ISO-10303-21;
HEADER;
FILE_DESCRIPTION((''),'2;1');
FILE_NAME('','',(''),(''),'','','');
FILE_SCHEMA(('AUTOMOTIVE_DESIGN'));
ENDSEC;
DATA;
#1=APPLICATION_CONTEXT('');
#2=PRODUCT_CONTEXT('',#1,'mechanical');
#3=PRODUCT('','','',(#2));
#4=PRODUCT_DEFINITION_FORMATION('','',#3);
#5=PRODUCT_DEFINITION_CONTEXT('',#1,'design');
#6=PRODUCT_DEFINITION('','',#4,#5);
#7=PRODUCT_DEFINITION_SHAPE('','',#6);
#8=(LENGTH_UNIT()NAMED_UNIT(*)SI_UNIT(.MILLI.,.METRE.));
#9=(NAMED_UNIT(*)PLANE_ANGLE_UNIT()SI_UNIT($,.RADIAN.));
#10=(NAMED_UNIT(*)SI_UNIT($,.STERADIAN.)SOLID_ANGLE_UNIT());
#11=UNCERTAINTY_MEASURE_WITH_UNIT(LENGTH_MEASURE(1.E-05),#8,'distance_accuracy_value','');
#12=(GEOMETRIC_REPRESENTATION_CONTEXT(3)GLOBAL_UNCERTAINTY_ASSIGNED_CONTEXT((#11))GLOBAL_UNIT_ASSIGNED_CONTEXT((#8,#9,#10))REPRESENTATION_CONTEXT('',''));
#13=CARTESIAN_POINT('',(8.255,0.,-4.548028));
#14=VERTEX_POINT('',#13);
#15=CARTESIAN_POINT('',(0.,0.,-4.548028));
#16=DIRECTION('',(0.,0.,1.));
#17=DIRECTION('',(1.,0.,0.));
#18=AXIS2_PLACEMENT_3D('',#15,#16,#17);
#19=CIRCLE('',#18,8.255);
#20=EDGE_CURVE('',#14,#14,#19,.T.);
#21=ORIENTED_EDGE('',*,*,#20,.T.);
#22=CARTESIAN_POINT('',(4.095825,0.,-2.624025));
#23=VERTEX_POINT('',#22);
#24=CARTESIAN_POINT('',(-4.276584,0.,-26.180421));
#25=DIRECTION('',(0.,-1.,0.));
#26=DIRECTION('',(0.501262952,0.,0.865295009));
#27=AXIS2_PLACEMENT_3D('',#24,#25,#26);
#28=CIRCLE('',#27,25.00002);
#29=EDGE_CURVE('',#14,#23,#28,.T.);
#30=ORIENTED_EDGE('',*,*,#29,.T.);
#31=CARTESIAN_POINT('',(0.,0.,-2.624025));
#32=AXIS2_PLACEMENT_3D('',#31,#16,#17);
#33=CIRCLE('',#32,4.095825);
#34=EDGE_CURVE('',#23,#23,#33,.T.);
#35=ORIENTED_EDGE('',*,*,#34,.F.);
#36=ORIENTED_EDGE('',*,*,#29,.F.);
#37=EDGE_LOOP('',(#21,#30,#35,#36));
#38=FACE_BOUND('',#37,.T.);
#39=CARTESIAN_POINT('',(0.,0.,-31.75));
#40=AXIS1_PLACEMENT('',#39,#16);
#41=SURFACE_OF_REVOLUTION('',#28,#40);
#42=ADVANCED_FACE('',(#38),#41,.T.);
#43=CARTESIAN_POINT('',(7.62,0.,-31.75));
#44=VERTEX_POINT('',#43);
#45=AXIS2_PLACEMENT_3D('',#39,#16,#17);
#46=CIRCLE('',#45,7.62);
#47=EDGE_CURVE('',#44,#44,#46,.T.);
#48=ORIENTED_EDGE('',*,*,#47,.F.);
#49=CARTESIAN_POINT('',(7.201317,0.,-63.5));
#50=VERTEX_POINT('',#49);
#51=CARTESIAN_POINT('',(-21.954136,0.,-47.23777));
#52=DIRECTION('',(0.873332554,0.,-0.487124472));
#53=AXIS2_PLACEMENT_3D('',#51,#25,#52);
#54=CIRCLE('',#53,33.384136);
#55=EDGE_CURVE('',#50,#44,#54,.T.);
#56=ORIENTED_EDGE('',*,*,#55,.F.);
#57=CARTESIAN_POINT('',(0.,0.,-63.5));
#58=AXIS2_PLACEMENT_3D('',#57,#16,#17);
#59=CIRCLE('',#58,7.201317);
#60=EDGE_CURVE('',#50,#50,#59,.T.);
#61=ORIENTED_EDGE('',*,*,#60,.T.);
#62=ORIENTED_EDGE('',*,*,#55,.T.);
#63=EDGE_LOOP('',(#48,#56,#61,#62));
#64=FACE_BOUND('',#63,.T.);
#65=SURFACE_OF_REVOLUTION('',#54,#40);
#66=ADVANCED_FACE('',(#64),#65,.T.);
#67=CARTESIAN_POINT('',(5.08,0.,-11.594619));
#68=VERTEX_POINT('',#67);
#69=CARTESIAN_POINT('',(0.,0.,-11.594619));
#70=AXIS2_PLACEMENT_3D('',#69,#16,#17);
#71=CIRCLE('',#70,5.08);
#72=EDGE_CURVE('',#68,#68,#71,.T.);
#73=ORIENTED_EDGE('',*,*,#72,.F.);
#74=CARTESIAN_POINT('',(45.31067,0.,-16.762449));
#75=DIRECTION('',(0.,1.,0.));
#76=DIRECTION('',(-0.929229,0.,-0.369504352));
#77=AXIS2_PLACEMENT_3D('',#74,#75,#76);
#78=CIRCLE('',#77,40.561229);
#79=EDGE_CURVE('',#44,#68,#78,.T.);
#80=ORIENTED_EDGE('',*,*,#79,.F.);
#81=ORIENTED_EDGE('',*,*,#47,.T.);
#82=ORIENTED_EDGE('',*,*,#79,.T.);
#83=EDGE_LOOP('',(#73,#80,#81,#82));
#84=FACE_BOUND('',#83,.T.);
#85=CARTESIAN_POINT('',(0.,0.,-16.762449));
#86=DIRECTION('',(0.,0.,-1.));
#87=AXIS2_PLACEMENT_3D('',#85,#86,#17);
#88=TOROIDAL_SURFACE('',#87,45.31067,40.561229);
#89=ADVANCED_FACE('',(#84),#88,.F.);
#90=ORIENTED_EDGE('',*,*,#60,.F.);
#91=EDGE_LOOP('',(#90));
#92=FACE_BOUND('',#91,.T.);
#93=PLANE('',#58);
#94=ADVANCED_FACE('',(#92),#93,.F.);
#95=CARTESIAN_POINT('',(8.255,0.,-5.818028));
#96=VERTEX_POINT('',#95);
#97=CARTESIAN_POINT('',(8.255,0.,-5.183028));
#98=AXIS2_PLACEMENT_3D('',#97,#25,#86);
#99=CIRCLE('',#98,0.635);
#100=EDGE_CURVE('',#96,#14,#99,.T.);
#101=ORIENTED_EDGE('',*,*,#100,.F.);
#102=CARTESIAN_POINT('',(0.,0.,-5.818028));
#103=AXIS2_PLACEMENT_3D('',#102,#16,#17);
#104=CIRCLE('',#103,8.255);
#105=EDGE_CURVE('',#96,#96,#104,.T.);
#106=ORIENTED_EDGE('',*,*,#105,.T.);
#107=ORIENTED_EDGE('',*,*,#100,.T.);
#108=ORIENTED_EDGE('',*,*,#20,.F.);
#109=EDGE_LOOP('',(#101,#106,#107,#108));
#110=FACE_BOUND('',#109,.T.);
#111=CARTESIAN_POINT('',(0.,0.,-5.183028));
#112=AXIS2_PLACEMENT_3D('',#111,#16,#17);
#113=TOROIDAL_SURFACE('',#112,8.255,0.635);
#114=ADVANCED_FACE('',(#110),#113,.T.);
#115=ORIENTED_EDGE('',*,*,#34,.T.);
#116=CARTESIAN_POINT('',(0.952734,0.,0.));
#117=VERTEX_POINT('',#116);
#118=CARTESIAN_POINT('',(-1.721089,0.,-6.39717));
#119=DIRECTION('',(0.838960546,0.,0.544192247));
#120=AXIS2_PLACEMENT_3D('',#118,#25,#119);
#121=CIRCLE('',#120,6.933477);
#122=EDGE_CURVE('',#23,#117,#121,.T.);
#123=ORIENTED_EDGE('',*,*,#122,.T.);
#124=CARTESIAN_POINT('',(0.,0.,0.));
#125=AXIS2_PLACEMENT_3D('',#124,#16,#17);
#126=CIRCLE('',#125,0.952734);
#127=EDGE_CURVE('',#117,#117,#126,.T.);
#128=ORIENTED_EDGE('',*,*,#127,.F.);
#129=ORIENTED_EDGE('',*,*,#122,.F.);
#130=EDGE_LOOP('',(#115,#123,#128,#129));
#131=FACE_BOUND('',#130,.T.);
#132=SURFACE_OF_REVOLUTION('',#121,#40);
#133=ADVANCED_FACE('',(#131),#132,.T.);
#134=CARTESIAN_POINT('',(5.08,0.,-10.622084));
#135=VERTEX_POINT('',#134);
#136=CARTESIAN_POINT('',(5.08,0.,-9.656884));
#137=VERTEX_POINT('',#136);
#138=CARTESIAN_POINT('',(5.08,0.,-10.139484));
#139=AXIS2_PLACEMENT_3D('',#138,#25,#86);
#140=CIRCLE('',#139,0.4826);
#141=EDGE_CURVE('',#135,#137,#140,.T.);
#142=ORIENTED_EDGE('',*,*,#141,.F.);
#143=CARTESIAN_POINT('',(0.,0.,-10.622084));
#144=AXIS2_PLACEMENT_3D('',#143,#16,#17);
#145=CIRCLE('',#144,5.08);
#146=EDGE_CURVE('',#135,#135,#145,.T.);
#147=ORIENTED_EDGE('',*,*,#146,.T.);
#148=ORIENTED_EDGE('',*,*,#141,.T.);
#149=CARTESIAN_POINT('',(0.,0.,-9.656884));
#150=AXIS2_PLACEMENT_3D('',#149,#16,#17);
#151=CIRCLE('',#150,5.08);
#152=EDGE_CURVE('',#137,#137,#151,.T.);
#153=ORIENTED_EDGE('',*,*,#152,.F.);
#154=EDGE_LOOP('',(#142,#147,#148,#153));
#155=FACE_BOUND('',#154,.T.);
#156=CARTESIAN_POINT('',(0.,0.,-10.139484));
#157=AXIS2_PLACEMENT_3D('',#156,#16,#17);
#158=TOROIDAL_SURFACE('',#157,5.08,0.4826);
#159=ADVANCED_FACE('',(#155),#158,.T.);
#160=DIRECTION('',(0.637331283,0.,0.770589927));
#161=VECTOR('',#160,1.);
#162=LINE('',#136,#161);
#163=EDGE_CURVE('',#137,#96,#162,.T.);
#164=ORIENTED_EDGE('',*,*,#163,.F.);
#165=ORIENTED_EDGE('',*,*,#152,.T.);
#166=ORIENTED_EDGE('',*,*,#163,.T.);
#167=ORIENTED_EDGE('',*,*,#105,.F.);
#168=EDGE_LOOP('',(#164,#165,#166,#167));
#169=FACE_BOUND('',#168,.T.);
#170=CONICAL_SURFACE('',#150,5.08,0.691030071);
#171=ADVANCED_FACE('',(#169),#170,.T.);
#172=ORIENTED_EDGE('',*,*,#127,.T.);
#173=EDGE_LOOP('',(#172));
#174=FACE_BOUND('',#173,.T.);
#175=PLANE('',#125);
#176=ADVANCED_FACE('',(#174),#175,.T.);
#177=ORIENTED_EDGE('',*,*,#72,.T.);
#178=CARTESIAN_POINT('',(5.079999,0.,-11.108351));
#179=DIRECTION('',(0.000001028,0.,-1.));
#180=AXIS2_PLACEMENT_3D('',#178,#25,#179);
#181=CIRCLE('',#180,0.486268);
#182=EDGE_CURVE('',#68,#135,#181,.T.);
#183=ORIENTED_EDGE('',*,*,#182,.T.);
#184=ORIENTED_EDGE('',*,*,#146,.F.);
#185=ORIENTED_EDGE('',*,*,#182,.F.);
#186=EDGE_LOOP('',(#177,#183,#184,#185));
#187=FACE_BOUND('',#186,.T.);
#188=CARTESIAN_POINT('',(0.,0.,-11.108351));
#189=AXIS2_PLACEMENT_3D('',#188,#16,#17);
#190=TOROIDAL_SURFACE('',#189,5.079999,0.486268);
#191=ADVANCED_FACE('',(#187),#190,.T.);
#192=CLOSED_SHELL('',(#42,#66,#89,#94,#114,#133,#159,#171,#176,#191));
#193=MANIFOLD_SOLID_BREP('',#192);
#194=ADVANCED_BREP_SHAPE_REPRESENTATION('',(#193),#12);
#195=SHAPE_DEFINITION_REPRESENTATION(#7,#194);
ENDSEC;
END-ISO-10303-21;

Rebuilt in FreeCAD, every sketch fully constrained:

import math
import FreeCAD as App
import Part
import Sketcher
from FreeCAD import Vector
Q = App.Units.Quantity

doc = App.newDocument("Part")
body = doc.addObject("PartDesign::Body", "Body")

sketch1 = body.newObject("Sketcher::SketchObject", "Sketch")
sketch1.AttachmentSupport = (doc.getObject("XZ_Plane"), [""])
sketch1.MapMode = "FlatFace"
sketch1.addGeometry([
    Part.LineSegment(Vector(0, -63.5, 0), Vector(7.201317, -63.5, 0)),
    Part.ArcOfCircle(Part.Circle(Vector(-21.954136, -47.23777, 0), Vector(0, 0, 1), 33.384136), math.radians(-29.151756), math.radians(27.64074)),
    Part.ArcOfCircle(Part.Circle(Vector(45.31067, -16.762449, 0), Vector(0, 0, 1), 40.561229), math.radians(172.680156), math.radians(201.685053)),
    Part.ArcOfCircle(Part.Circle(Vector(5.079999, -11.108351, 0), Vector(0, 0, 1), 0.486268), math.radians(-89.999941), math.radians(89.999941)),
    Part.ArcOfCircle(Part.Circle(Vector(5.08, -10.139484, 0), Vector(0, 0, 1), 0.4826), math.radians(-90), math.radians(90)),
    Part.LineSegment(Vector(5.08, -9.656884, 0), Vector(8.255, -5.818028, 0)),
    Part.ArcOfCircle(Part.Circle(Vector(8.255, -5.183028, 0), Vector(0, 0, 1), 0.635), math.radians(-90), math.radians(90)),
    Part.ArcOfCircle(Part.Circle(Vector(-4.276584, -26.180421, 0), Vector(0, 0, 1), 25.00002), math.radians(59.916409), math.radians(70.433781)),
    Part.ArcOfCircle(Part.Circle(Vector(-1.721089, -6.39717, 0), Vector(0, 0, 1), 6.933477), math.radians(32.969482), math.radians(67.316551)),
    Part.LineSegment(Vector(0.952734, 0, 0), Vector(0, 0, 0)),
    Part.LineSegment(Vector(0, 0, 0), Vector(0, -63.5, 0)),
], False)
sketch1.addConstraint([
    Sketcher.Constraint("Coincident", 0, 2, 1, 1),
    Sketcher.Constraint("Coincident", 1, 2, 2, 2),
    Sketcher.Constraint("Coincident", 2, 1, 3, 1),
    Sketcher.Constraint("Tangent", 3, 2, 4, 1),
    Sketcher.Constraint("Coincident", 4, 2, 5, 1),
    Sketcher.Constraint("Coincident", 5, 2, 6, 1),
    Sketcher.Constraint("Coincident", 6, 2, 7, 1),
    Sketcher.Constraint("Coincident", 7, 2, 8, 1),
    Sketcher.Constraint("Coincident", 8, 2, 9, 1),
    Sketcher.Constraint("Coincident", 9, 2, 10, 1),
    Sketcher.Constraint("Coincident", 10, 2, 0, 1),
    Sketcher.Constraint("Horizontal", 0),
    Sketcher.Constraint("Horizontal", 9),
    Sketcher.Constraint("Vertical", 10),
    Sketcher.Constraint("Coincident", 9, 2, -1, 1),
    Sketcher.Constraint("Vertical", 3, 3, 4, 3),
    Sketcher.Constraint("Vertical", 4, 3, 2, 1),
    Sketcher.Constraint("Vertical", 3, 2, 4, 2),
    Sketcher.Constraint("Vertical", 6, 3, 5, 2),
    Sketcher.Constraint("Vertical", 5, 2, 6, 2),
    Sketcher.Constraint("DistanceY", 10, 2, 10, 1, Q("2.5 in")),
    Sketcher.Constraint("Radius", 4, Q("0.019 in")),
    Sketcher.Constraint("Radius", 6, Q("0.025 in")),
    Sketcher.Constraint("DistanceX", -1, 1, 3, 3, Q("0.2 in")),
    Sketcher.Constraint("DistanceX", -1, 1, 1, 2, Q("0.3 in")),
    Sketcher.Constraint("DistanceY", 1, 2, -1, 1, Q("1.25 in")),
    Sketcher.Constraint("DistanceX", -1, 1, 6, 3, Q("0.325 in")),
    Sketcher.Constraint("Radius", 2, 40.561229),
    Sketcher.Constraint("Radius", 7, 25.00002),
    Sketcher.Constraint("Radius", 1, 33.384136),
    Sketcher.Constraint("Radius", 3, 0.486268),
    Sketcher.Constraint("Radius", 8, 6.933477),
    Sketcher.Constraint("DistanceY", 1, 3, 8, 3, 40.840601),
    Sketcher.Constraint("DistanceX", 7, 3, 0, 2, 11.477901),
    Sketcher.Constraint("DistanceY", 7, 3, 2, 1, 14.585802),
    Sketcher.Constraint("Distance", 5, 4.981711),
    Sketcher.Constraint("DistanceX", 9, 2, 9, 1, 0.952734),
    Sketcher.Constraint("DistanceX", -1, 1, 2, 3, 45.31067),
])
revolution = body.newObject("PartDesign::Revolution", "Revolution")
revolution.Profile = sketch1
revolution.ReferenceAxis = (sketch1, ["V_Axis"])
revolution.Angle = 360

doc.recompute()
